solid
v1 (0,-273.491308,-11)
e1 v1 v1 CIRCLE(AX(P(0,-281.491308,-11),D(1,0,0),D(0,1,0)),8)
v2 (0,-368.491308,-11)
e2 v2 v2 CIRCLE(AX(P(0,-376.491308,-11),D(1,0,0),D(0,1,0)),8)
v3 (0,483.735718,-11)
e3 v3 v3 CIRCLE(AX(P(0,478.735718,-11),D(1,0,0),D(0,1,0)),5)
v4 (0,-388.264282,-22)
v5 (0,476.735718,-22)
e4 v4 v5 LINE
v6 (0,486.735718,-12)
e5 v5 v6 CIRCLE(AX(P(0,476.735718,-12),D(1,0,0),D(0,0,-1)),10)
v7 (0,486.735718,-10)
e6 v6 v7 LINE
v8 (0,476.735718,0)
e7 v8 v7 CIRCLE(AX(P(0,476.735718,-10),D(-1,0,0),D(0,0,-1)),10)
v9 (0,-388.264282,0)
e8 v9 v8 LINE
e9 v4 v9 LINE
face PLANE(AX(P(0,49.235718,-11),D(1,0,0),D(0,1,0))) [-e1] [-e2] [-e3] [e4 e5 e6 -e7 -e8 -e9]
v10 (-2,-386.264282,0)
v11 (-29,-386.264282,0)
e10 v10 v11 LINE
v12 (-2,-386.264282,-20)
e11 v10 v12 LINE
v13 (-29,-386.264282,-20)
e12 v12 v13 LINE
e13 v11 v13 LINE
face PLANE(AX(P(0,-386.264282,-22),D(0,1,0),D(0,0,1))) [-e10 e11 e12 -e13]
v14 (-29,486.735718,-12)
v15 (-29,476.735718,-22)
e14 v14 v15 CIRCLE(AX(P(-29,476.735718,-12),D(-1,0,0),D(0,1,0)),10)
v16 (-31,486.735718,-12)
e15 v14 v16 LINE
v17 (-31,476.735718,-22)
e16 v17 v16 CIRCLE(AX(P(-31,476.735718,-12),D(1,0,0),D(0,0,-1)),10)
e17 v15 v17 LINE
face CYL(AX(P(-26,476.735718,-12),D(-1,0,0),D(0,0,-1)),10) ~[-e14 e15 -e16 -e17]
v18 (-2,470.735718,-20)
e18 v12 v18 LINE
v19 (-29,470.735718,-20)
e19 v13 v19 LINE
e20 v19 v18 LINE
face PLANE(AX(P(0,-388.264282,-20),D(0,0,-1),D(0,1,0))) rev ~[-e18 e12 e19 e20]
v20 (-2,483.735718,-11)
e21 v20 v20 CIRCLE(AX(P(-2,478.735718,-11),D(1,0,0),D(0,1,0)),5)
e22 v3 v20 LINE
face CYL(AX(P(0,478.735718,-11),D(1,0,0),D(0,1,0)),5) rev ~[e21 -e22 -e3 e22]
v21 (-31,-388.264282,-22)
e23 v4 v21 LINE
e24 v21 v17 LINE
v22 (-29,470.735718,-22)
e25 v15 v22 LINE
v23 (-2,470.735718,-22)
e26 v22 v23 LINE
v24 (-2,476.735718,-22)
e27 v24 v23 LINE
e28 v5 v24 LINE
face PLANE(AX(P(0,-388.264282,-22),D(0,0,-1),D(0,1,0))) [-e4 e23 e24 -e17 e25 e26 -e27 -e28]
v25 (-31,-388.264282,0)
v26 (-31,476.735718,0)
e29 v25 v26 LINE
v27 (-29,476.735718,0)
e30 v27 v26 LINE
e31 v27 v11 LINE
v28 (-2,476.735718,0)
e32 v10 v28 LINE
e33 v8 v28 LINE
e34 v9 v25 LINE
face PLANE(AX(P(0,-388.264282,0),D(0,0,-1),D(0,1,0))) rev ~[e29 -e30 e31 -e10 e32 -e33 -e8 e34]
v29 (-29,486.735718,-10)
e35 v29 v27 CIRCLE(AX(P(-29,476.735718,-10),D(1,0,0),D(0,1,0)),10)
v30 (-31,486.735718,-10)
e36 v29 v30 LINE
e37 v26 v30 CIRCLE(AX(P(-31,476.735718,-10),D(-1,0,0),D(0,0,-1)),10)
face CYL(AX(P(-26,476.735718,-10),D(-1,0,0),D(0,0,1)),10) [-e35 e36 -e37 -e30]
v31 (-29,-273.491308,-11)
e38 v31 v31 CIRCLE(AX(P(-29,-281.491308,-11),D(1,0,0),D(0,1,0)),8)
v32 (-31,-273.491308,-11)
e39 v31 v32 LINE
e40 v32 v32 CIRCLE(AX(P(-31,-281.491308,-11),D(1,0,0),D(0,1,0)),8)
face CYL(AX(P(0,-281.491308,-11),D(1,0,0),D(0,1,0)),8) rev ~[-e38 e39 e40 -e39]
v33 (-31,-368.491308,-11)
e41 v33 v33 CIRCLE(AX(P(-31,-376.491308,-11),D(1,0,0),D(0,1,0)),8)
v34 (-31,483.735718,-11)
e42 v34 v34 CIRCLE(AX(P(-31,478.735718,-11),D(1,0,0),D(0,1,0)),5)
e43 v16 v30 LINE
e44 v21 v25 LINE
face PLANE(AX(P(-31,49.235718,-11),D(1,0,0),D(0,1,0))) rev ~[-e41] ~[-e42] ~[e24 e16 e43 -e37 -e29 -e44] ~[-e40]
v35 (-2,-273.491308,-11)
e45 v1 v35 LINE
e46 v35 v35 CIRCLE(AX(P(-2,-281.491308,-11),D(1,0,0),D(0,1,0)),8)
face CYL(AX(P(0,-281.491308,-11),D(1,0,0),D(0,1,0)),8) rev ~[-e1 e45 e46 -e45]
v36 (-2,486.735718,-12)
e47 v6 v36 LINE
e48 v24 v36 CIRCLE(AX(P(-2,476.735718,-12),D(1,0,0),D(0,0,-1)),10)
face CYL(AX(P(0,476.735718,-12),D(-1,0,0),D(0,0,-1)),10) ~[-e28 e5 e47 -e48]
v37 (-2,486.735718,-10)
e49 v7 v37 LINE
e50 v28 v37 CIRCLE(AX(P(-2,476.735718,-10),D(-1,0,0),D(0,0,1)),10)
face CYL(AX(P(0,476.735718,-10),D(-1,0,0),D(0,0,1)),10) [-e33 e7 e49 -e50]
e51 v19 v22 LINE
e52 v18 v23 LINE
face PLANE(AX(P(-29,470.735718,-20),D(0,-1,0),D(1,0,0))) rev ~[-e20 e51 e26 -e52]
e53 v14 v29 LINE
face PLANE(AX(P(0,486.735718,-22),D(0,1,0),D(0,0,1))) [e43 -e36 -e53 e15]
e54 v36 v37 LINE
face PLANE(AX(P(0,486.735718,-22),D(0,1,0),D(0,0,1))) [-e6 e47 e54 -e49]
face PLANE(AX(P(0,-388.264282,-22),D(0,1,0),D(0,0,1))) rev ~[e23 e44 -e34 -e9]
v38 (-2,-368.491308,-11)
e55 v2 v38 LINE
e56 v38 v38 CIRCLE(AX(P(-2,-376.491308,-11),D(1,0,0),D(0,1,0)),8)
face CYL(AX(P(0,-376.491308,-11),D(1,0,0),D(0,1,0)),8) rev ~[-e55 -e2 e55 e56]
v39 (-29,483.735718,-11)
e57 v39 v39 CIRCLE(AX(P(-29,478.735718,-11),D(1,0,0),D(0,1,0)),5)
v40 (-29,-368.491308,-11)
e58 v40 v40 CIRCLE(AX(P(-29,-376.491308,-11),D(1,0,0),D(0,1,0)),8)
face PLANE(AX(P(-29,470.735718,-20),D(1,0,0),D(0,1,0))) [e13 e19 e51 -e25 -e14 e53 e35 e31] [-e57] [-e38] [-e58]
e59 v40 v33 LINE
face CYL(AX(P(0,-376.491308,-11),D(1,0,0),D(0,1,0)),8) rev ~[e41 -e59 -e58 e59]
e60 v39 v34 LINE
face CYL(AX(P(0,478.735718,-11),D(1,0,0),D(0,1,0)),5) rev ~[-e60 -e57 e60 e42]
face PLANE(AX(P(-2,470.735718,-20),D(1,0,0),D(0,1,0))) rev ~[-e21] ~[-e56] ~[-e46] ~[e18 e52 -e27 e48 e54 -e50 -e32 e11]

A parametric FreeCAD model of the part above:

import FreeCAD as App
import Part
import Sketcher
Q = App.Units.Quantity


def edges_at(feature, points):
    """Names of the edges that pass closest to the given points."""
    edges = feature.Shape.Edges
    near = lambda p: min(range(len(edges)), key=lambda i: edges[i].distToShape(Part.Vertex(*p))[0])
    return sorted({f"Edge{near(p) + 1}" for p in points})


def faces_at(feature, points):
    """Names of the faces that lie closest to the given points."""
    faces = feature.Shape.Faces
    near = lambda p: min(range(len(faces)), key=lambda i: faces[i].distToShape(Part.Vertex(*p))[0])
    return sorted({f"Face{near(p) + 1}" for p in points})

doc = App.newDocument("Part")
body = doc.addObject("PartDesign::Body", "Body")

sketch1 = doc.addObject("Sketcher::SketchObject", "Sketch")
body.addObject(sketch1)
sketch1.AttachmentSupport = (doc.YZ_Plane, [""])
sketch1.MapMode = "FlatFace"
sketch1.addGeometry(Part.LineSegment(App.Vector(-388.264282, 0, 0), App.Vector(-388.264282, -22, 0)), False)
sketch1.addGeometry(Part.LineSegment(App.Vector(-388.264282, -22, 0), App.Vector(486.735718, -22, 0)), False)
sketch1.addGeometry(Part.LineSegment(App.Vector(486.735718, -22, 0), App.Vector(486.735718, 0, 0)), False)
sketch1.addGeometry(Part.LineSegment(App.Vector(486.735718, 0, 0), App.Vector(-388.264282, 0, 0)), False)
sketch1.addConstraint(Sketcher.Constraint("Coincident", 0, 2, 1, 1))
sketch1.addConstraint(Sketcher.Constraint("Coincident", 1, 2, 2, 1))
sketch1.addConstraint(Sketcher.Constraint("Coincident", 2, 2, 3, 1))
sketch1.addConstraint(Sketcher.Constraint("Coincident", 3, 2, 0, 1))
sketch1.addConstraint(Sketcher.Constraint("Vertical", 0))
sketch1.addConstraint(Sketcher.Constraint("Horizontal", 1))
sketch1.addConstraint(Sketcher.Constraint("Vertical", 2))
sketch1.addConstraint(Sketcher.Constraint("Horizontal", 3))
sketch1.addConstraint(Sketcher.Constraint("PointOnObject", 2, 2, -1))
sketch1.addConstraint(Sketcher.Constraint("DistanceX", 1, 1, 1, 2, Q("875 mm")))
sketch1.addConstraint(Sketcher.Constraint("DistanceY", 0, 2, 0, 1, Q("22 mm")))
sketch1.addConstraint(Sketcher.Constraint("DistanceX", 0, 2, -1, 1, Q("388.264282 mm")))
pad1 = doc.addObject("PartDesign::Pad", "Pad")
body.addObject(pad1)
pad1.Profile = sketch1
pad1.Length = 31
pad1.Reversed = True
doc.recompute()

thickness = doc.addObject("PartDesign::Thickness", "Thickness")
body.addObject(thickness)
thickness.Base = (pad1, faces_at(pad1, [(-15.5, 49.236, 0)]))
thickness.Value = 2
thickness.Reversed = True
thickness.Join = "Arc"

sketch2 = doc.addObject("Sketcher::SketchObject", "Sketch001")
body.addObject(sketch2)
sketch2.AttachmentSupport = (doc.YZ_Plane, [""])
sketch2.MapMode = "FlatFace"
sketch2.addGeometry(Part.Circle(App.Vector(478.735718, -11, 0), App.Vector(0, 0, 1), 5), False)
sketch2.addConstraint(Sketcher.Constraint("Diameter", 0, Q("10 mm")))
sketch2.addConstraint(Sketcher.Constraint("DistanceY", 0, 3, -1, 1, Q("11 mm")))
sketch2.addConstraint(Sketcher.Constraint("DistanceX", -1, 1, 0, 3, Q("478.735718 mm")))
pocket1 = doc.addObject("PartDesign::Pocket", "Pocket")
body.addObject(pocket1)
pocket1.Profile = sketch2
pocket1.Length = 61

sketch3 = doc.addObject("Sketcher::SketchObject", "Sketch002")
body.addObject(sketch3)
sketch3.AttachmentSupport = (doc.XY_Plane, [""])
sketch3.MapMode = "FlatFace"
sketch3.addGeometry(Part.LineSegment(App.Vector(-26, 486.735718, 0), App.Vector(-26, 470.735718, 0)), False)
sketch3.addGeometry(Part.LineSegment(App.Vector(-26, 470.735718, 0), App.Vector(-10, 470.735718, 0)), False)
sketch3.addGeometry(Part.LineSegment(App.Vector(-10, 470.735718, 0), App.Vector(-10, 486.735718, 0)), False)
sketch3.addGeometry(Part.LineSegment(App.Vector(-10, 486.735718, 0), App.Vector(-26, 486.735718, 0)), False)
sketch3.addConstraint(Sketcher.Constraint("Coincident", 0, 2, 1, 1))
sketch3.addConstraint(Sketcher.Constraint("Coincident", 1, 2, 2, 1))
sketch3.addConstraint(Sketcher.Constraint("Coincident", 2, 2, 3, 1))
sketch3.addConstraint(Sketcher.Constraint("Coincident", 3, 2, 0, 1))
sketch3.addConstraint(Sketcher.Constraint("Vertical", 0))
sketch3.addConstraint(Sketcher.Constraint("Horizontal", 1))
sketch3.addConstraint(Sketcher.Constraint("Vertical", 2))
sketch3.addConstraint(Sketcher.Constraint("Horizontal", 3))
sketch3.addConstraint(Sketcher.Constraint("Equal", 3, 0))
sketch3.addConstraint(Sketcher.Constraint("DistanceX", 1, 1, 1, 2, Q("16 mm")))
sketch3.addConstraint(Sketcher.Constraint("DistanceX", 0, 2, -1, 1, Q("26 mm")))
sketch3.addConstraint(Sketcher.Constraint("DistanceY", -1, 1, 0, 2, Q("470.735718 mm")))
pocket2 = doc.addObject("PartDesign::Pocket", "Pocket001")
body.addObject(pocket2)
pocket2.Profile = sketch3
pocket2.Length = 46

sketch4 = doc.addObject("Sketcher::SketchObject", "Sketch003")
body.addObject(sketch4)
sketch4.AttachmentSupport = (doc.YZ_Plane, [""])
sketch4.MapMode = "FlatFace"
sketch4.addGeometry(Part.Circle(App.Vector(-376.491308, -11, 0), App.Vector(0, 0, 1), 8), False)
sketch4.addGeometry(Part.Circle(App.Vector(-281.491308, -11, 0), App.Vector(0, 0, 1), 8), False)
sketch4.addConstraint(Sketcher.Constraint("Equal", 0, 1))
sketch4.addConstraint(Sketcher.Constraint("Horizontal", 0, 3, 1, 3))
sketch4.addConstraint(Sketcher.Constraint("Diameter", 0, Q("16 mm")))
sketch4.addConstraint(Sketcher.Constraint("DistanceY", 0, 3, -1, 1, Q("11 mm")))
sketch4.addConstraint(Sketcher.Constraint("DistanceX", 0, 3, 1, 3, Q("95 mm")))
sketch4.addConstraint(Sketcher.Constraint("DistanceX", 0, 3, -1, 1, Q("376.491308 mm")))
pocket3 = doc.addObject("PartDesign::Pocket", "Pocket002")
body.addObject(pocket3)
pocket3.Profile = sketch4
pocket3.Length = 96
doc.recompute()

fillet = doc.addObject("PartDesign::Fillet", "Fillet")
body.addObject(fillet)
fillet.Base = (pocket3, edges_at(pocket3, [
    (-5, 486.736, 0),
    (-28.5, 486.736, 0),
    (-6, 484.736, -20),
    (-5, 486.736, -22),
    (-27.5, 484.736, -20),
    (-28.5, 486.736, -22),
]))
fillet.Radius = 10

sketch5 = doc.addObject("Sketcher::SketchObject", "Sketch004")
body.addObject(sketch5)
sketch5.AttachmentSupport = (doc.XY_Plane, [""])
sketch5.MapMode = "FlatFace"
sketch5.AttachmentOffset = App.Placement(App.Vector(0, 0, -20), App.Rotation())
sketch5.addGeometry(Part.LineSegment(App.Vector(-29, 492.248744, 0), App.Vector(-29, 470.735718, 0)), False)
sketch5.addGeometry(Part.LineSegment(App.Vector(-29, 470.735718, 0), App.Vector(-2, 470.735718, 0)), False)
sketch5.addGeometry(Part.LineSegment(App.Vector(-2, 470.735718, 0), App.Vector(-2, 492.248744, 0)), False)
sketch5.addGeometry(Part.LineSegment(App.Vector(-2, 492.248744, 0), App.Vector(-29, 492.248744, 0)), False)
sketch5.addConstraint(Sketcher.Constraint("Coincident", 0, 2, 1, 1))
sketch5.addConstraint(Sketcher.Constraint("Coincident", 1, 2, 2, 1))
sketch5.addConstraint(Sketcher.Constraint("Coincident", 2, 2, 3, 1))
sketch5.addConstraint(Sketcher.Constraint("Coincident", 3, 2, 0, 1))
sketch5.addConstraint(Sketcher.Constraint("Vertical", 0))
sketch5.addConstraint(Sketcher.Constraint("Horizontal", 1))
sketch5.addConstraint(Sketcher.Constraint("Vertical", 2))
sketch5.addConstraint(Sketcher.Constraint("Horizontal", 3))
sketch5.addConstraint(Sketcher.Constraint("DistanceX", 1, 1, 1, 2, Q("27 mm")))
sketch5.addConstraint(Sketcher.Constraint("DistanceX", 0, 2, -1, 1, Q("29 mm")))
sketch5.addConstraint(Sketcher.Constraint("DistanceY", 0, 2, 0, 1, Q("21.513026 mm")))
sketch5.addConstraint(Sketcher.Constraint("DistanceY", -1, 1, 0, 2, Q("470.735718 mm")))
pocket4 = doc.addObject("PartDesign::Pocket", "Pocket003")
body.addObject(pocket4)
pocket4.Profile = sketch5
pocket4.Length = 25

sketch6 = doc.addObject("Sketcher::SketchObject", "Sketch005")
body.addObject(sketch6)
sketch6.AttachmentSupport = (doc.XY_Plane, [""])
sketch6.MapMode = "FlatFace"
sketch6.AttachmentOffset = App.Placement(App.Vector(0, 0, -20), App.Rotation())
sketch6.addGeometry(Part.LineSegment(App.Vector(-29, 491.576761, 0), App.Vector(-29, 473.217279, 0)), False)
sketch6.addGeometry(Part.LineSegment(App.Vector(-29, 473.217279, 0), App.Vector(-2, 473.217279, 0)), False)
sketch6.addGeometry(Part.LineSegment(App.Vector(-2, 473.217279, 0), App.Vector(-2, 491.576761, 0)), False)
sketch6.addGeometry(Part.LineSegment(App.Vector(-2, 491.576761, 0), App.Vector(-29, 491.576761, 0)), False)
sketch6.addConstraint(Sketcher.Constraint("Coincident", 0, 2, 1, 1))
sketch6.addConstraint(Sketcher.Constraint("Coincident", 1, 2, 2, 1))
sketch6.addConstraint(Sketcher.Constraint("Coincident", 2, 2, 3, 1))
sketch6.addConstraint(Sketcher.Constraint("Coincident", 3, 2, 0, 1))
sketch6.addConstraint(Sketcher.Constraint("Vertical", 0))
sketch6.addConstraint(Sketcher.Constraint("Horizontal", 1))
sketch6.addConstraint(Sketcher.Constraint("Vertical", 2))
sketch6.addConstraint(Sketcher.Constraint("Horizontal", 3))
sketch6.addConstraint(Sketcher.Constraint("DistanceX", 1, 1, 1, 2, Q("27 mm")))
sketch6.addConstraint(Sketcher.Constraint("DistanceX", 0, 2, -1, 1, Q("29 mm")))
sketch6.addConstraint(Sketcher.Constraint("DistanceY", 0, 2, 0, 1, Q("18.359482 mm")))
sketch6.addConstraint(Sketcher.Constraint("DistanceY", -1, 1, 0, 2, Q("473.217279 mm")))
pocket5 = doc.addObject("PartDesign::Pocket", "Pocket004")
body.addObject(pocket5)
pocket5.Profile = sketch6
pocket5.Length = 25
pocket5.Reversed = True

doc.recompute()
